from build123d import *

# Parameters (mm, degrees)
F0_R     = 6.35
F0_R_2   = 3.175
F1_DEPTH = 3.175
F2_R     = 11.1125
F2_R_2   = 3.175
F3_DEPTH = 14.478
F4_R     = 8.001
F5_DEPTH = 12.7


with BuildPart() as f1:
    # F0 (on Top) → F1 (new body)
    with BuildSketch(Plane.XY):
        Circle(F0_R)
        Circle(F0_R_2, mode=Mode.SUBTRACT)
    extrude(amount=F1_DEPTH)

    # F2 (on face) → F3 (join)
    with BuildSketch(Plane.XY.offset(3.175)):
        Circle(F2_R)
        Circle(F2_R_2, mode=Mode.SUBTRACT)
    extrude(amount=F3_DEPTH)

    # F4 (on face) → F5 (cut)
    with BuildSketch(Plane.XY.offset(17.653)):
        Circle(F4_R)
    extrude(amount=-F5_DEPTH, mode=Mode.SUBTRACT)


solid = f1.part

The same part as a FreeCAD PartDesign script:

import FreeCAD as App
import Part
import Sketcher

V = App.Vector
Q = App.Units.Quantity

doc = App.newDocument("Part")
body = doc.addObject("PartDesign::Body", "Body")

# Sketch on XY plane
sketch1 = body.newObject("Sketcher::SketchObject", "Sketch")
sketch1.AttachmentSupport = (doc.getObject("XY_Plane"), [""])
sketch1.MapMode = "FlatFace"
sketch1.addGeometry(Part.Circle(V(0, 0, 0), V(0, 0, 1), 6.35), False)
sketch1.addGeometry(Part.Circle(V(0, 0, 0), V(0, 0, 1), 3.175), False)
sketch1.addConstraint(Sketcher.Constraint("Coincident", 0, 3, -1, 1))
sketch1.addConstraint(Sketcher.Constraint("Coincident", 1, 3, -1, 1))
sketch1.addConstraint(Sketcher.Constraint("Diameter", 0, Q("0.5 in")))
sketch1.addConstraint(Sketcher.Constraint("Diameter", 1, Q("0.25 in")))
pad1 = body.newObject("PartDesign::Pad", "Pad")
pad1.Profile = sketch1
pad1.Length = Q("0.125 in")

# Sketch on XY plane
sketch2 = body.newObject("Sketcher::SketchObject", "Sketch001")
sketch2.AttachmentSupport = (doc.getObject("XY_Plane"), [""])
sketch2.MapMode = "FlatFace"
sketch2.AttachmentOffset = App.Placement(V(0, 0, 0.125 * 25.4), App.Rotation())
sketch2.addGeometry(Part.Circle(V(0, 0, 0), V(0, 0, 1), 11.1125), False)
sketch2.addGeometry(Part.Circle(V(0, 0, 0), V(0, 0, 1), 3.175), False)
sketch2.addConstraint(Sketcher.Constraint("Coincident", 0, 3, -1, 1))
sketch2.addConstraint(Sketcher.Constraint("Coincident", 1, 3, -1, 1))
sketch2.addConstraint(Sketcher.Constraint("Diameter", 1, Q("0.25 in")))
sketch2.addConstraint(Sketcher.Constraint("Diameter", 0, Q("0.875 in")))
pad2 = body.newObject("PartDesign::Pad", "Pad001")
pad2.Profile = sketch2
pad2.Length = Q("0.57 in")

# Sketch on XY plane
sketch3 = body.newObject("Sketcher::SketchObject", "Sketch002")
sketch3.AttachmentSupport = (doc.getObject("XY_Plane"), [""])
sketch3.MapMode = "FlatFace"
sketch3.AttachmentOffset = App.Placement(V(0, 0, 0.695 * 25.4), App.Rotation())
sketch3.addGeometry(Part.Circle(V(0, 0, 0), V(0, 0, 1), 8.001), False)
sketch3.addConstraint(Sketcher.Constraint("Coincident", 0, 3, -1, 1))
sketch3.addConstraint(Sketcher.Constraint("Diameter", 0, Q("0.63 in")))
pocket1 = body.newObject("PartDesign::Pocket", "Pocket")
pocket1.Profile = sketch3
pocket1.Length = Q("0.5 in")

doc.recompute()
